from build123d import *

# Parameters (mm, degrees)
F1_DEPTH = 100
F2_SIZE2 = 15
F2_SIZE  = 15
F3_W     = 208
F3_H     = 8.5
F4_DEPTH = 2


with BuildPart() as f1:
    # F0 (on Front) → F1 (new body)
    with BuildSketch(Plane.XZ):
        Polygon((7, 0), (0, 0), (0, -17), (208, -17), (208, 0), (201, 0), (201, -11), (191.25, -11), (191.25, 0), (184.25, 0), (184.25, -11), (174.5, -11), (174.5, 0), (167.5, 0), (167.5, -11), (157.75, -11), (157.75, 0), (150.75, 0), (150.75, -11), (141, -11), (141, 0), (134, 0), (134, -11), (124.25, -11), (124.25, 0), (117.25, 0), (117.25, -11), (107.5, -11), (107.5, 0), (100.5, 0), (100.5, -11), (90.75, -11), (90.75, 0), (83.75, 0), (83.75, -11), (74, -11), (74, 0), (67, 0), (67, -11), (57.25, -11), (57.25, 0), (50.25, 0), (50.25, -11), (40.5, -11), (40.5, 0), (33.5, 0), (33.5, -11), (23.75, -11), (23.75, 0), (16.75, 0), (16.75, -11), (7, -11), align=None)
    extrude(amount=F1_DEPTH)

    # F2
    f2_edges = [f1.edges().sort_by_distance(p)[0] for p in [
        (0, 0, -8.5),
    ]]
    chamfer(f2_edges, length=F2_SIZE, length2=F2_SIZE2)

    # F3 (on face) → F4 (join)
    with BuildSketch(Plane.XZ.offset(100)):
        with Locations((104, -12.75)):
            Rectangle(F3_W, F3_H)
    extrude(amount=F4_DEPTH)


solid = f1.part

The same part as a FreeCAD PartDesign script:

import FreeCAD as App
import Part
import Sketcher

V = App.Vector


def edges_at(feature, points):
    """Names of the edges that pass closest to the given points."""
    edges = feature.Shape.Edges
    near = lambda p: min(range(len(edges)), key=lambda i: edges[i].distToShape(Part.Vertex(*p))[0])
    return sorted({f"Edge{near(p) + 1}" for p in points})

doc = App.newDocument("Part")
params = doc.addObject("Spreadsheet::Sheet", "Params")
for row, (alias, value) in enumerate([
    ("sketch1_width", "7 mm"),
    ("sketch1_width2", "208 mm"),
    ("sketch1_height", "17 mm"),
    ("sketch1_height2", "11 mm"),
    ("pad1_length", "100 mm"),
    ("chamfer_size", "15 mm"),
    ("chamfer_size2", "15 mm"),
    ("sketch2_width", "208 mm"),
    ("sketch2_height", "8.5 mm"),
    ("pad2_length", "2 mm"),
], start=1):
    params.set(f"A{row}", alias)
    params.set(f"B{row}", "=" + value)
    params.setAlias(f"B{row}", alias)

body = doc.addObject("PartDesign::Body", "Body")

sketch1 = body.newObject("Sketcher::SketchObject", "Sketch")
sketch1.AttachmentSupport = (doc.getObject("XZ_Plane"), [""])
sketch1.MapMode = "FlatFace"
sketch1.addGeometry([
    Part.LineSegment(V(7, 0, 0), V(0, 0, 0)),
    Part.LineSegment(V(0, 0, 0), V(0, -17, 0)),
    Part.LineSegment(V(0, -17, 0), V(208, -17, 0)),
    Part.LineSegment(V(208, -17, 0), V(208, 0, 0)),
    Part.LineSegment(V(208, 0, 0), V(201, 0, 0)),
    Part.LineSegment(V(201, 0, 0), V(201, -11, 0)),
    Part.LineSegment(V(201, -11, 0), V(191, -11, 0)),
    Part.LineSegment(V(191, -11, 0), V(191, 0, 0)),
    Part.LineSegment(V(191, 0, 0), V(184, 0, 0)),
    Part.LineSegment(V(184, 0, 0), V(184, -11, 0)),
    Part.LineSegment(V(184, -11, 0), V(174, -11, 0)),
    Part.LineSegment(V(174, -11, 0), V(174, 0, 0)),
    Part.LineSegment(V(174, 0, 0), V(168, 0, 0)),
    Part.LineSegment(V(168, 0, 0), V(168, -11, 0)),
    Part.LineSegment(V(168, -11, 0), V(158, -11, 0)),
    Part.LineSegment(V(158, -11, 0), V(158, 0, 0)),
    Part.LineSegment(V(158, 0, 0), V(151, 0, 0)),
    Part.LineSegment(V(151, 0, 0), V(151, -11, 0)),
    Part.LineSegment(V(151, -11, 0), V(141, -11, 0)),
    Part.LineSegment(V(141, -11, 0), V(141, 0, 0)),
    Part.LineSegment(V(141, 0, 0), V(134, 0, 0)),
    Part.LineSegment(V(134, 0, 0), V(134, -11, 0)),
    Part.LineSegment(V(134, -11, 0), V(124, -11, 0)),
    Part.LineSegment(V(124, -11, 0), V(124, 0, 0)),
    Part.LineSegment(V(124, 0, 0), V(117, 0, 0)),
    Part.LineSegment(V(117, 0, 0), V(117, -11, 0)),
    Part.LineSegment(V(117, -11, 0), V(108, -11, 0)),
    Part.LineSegment(V(108, -11, 0), V(108, 0, 0)),
    Part.LineSegment(V(108, 0, 0), V(100, 0, 0)),
    Part.LineSegment(V(100, 0, 0), V(100, -11, 0)),
    Part.LineSegment(V(100, -11, 0), V(91, -11, 0)),
    Part.LineSegment(V(91, -11, 0), V(91, 0, 0)),
    Part.LineSegment(V(91, 0, 0), V(84, 0, 0)),
    Part.LineSegment(V(84, 0, 0), V(84, -11, 0)),
    Part.LineSegment(V(84, -11, 0), V(74, -11, 0)),
    Part.LineSegment(V(74, -11, 0), V(74, 0, 0)),
    Part.LineSegment(V(74, 0, 0), V(67, 0, 0)),
    Part.LineSegment(V(67, 0, 0), V(67, -11, 0)),
    Part.LineSegment(V(67, -11, 0), V(57, -11, 0)),
    Part.LineSegment(V(57, -11, 0), V(57, 0, 0)),
    Part.LineSegment(V(57, 0, 0), V(50, 0, 0)),
    Part.LineSegment(V(50, 0, 0), V(50, -11, 0)),
    Part.LineSegment(V(50, -11, 0), V(40, -11, 0)),
    Part.LineSegment(V(40, -11, 0), V(40, 0, 0)),
    Part.LineSegment(V(40, 0, 0), V(34, 0, 0)),
    Part.LineSegment(V(34, 0, 0), V(34, -11, 0)),
    Part.LineSegment(V(34, -11, 0), V(24, -11, 0)),
    Part.LineSegment(V(24, -11, 0), V(24, 0, 0)),
    Part.LineSegment(V(24, 0, 0), V(17, 0, 0)),
    Part.LineSegment(V(17, 0, 0), V(17, -11, 0)),
    Part.LineSegment(V(17, -11, 0), V(7, -11, 0)),
    Part.LineSegment(V(7, -11, 0), V(7, 0, 0)),
], False)
sketch1.addConstraint([
    Sketcher.Constraint("Coincident", 0, 2, 1, 1),
    Sketcher.Constraint("Coincident", 1, 2, 2, 1),
    Sketcher.Constraint("Coincident", 2, 2, 3, 1),
    Sketcher.Constraint("Coincident", 3, 2, 4, 1),
    Sketcher.Constraint("Coincident", 4, 2, 5, 1),
    Sketcher.Constraint("Coincident", 5, 2, 6, 1),
    Sketcher.Constraint("Coincident", 6, 2, 7, 1),
    Sketcher.Constraint("Coincident", 7, 2, 8, 1),
    Sketcher.Constraint("Coincident", 8, 2, 9, 1),
    Sketcher.Constraint("Coincident", 9, 2, 10, 1),
    Sketcher.Constraint("Coincident", 10, 2, 11, 1),
    Sketcher.Constraint("Coincident", 11, 2, 12, 1),
    Sketcher.Constraint("Coincident", 12, 2, 13, 1),
    Sketcher.Constraint("Coincident", 13, 2, 14, 1),
    Sketcher.Constraint("Coincident", 14, 2, 15, 1),
    Sketcher.Constraint("Coincident", 15, 2, 16, 1),
    Sketcher.Constraint("Coincident", 16, 2, 17, 1),
    Sketcher.Constraint("Coincident", 17, 2, 18, 1),
    Sketcher.Constraint("Coincident", 18, 2, 19, 1),
    Sketcher.Constraint("Coincident", 19, 2, 20, 1),
    Sketcher.Constraint("Coincident", 20, 2, 21, 1),
    Sketcher.Constraint("Coincident", 21, 2, 22, 1),
    Sketcher.Constraint("Coincident", 22, 2, 23, 1),
    Sketcher.Constraint("Coincident", 23, 2, 24, 1),
    Sketcher.Constraint("Coincident", 24, 2, 25, 1),
    Sketcher.Constraint("Coincident", 25, 2, 26, 1),
    Sketcher.Constraint("Coincident", 26, 2, 27, 1),
    Sketcher.Constraint("Coincident", 27, 2, 28, 1),
    Sketcher.Constraint("Coincident", 28, 2, 29, 1),
    Sketcher.Constraint("Coincident", 29, 2, 30, 1),
    Sketcher.Constraint("Coincident", 30, 2, 31, 1),
    Sketcher.Constraint("Coincident", 31, 2, 32, 1),
    Sketcher.Constraint("Coincident", 32, 2, 33, 1),
    Sketcher.Constraint("Coincident", 33, 2, 34, 1),
    Sketcher.Constraint("Coincident", 34, 2, 35, 1),
    Sketcher.Constraint("Coincident", 35, 2, 36, 1),
    Sketcher.Constraint("Coincident", 36, 2, 37, 1),
    Sketcher.Constraint("Coincident", 37, 2, 38, 1),
    Sketcher.Constraint("Coincident", 38, 2, 39, 1),
    Sketcher.Constraint("Coincident", 39, 2, 40, 1),
    Sketcher.Constraint("Coincident", 40, 2, 41, 1),
    Sketcher.Constraint("Coincident", 41, 2, 42, 1),
    Sketcher.Constraint("Coincident", 42, 2, 43, 1),
    Sketcher.Constraint("Coincident", 43, 2, 44, 1),
    Sketcher.Constraint("Coincident", 44, 2, 45, 1),
    Sketcher.Constraint("Coincident", 45, 2, 46, 1),
    Sketcher.Constraint("Coincident", 46, 2, 47, 1),
    Sketcher.Constraint("Coincident", 47, 2, 48, 1),
    Sketcher.Constraint("Coincident", 48, 2, 49, 1),
    Sketcher.Constraint("Coincident", 49, 2, 50, 1),
    Sketcher.Constraint("Coincident", 50, 2, 51, 1),
    Sketcher.Constraint("Coincident", 51, 2, 0, 1),
    Sketcher.Constraint("Horizontal", 0),
    Sketcher.Constraint("Vertical", 1),
    Sketcher.Constraint("Horizontal", 2),
    Sketcher.Constraint("Vertical", 3),
    Sketcher.Constraint("Horizontal", 4),
    Sketcher.Constraint("Vertical", 5),
    Sketcher.Constraint("Horizontal", 6),
    Sketcher.Constraint("Vertical", 7),
    Sketcher.Constraint("Horizontal", 8),
    Sketcher.Constraint("Vertical", 9),
    Sketcher.Constraint("Horizontal", 10),
    Sketcher.Constraint("Vertical", 11),
    Sketcher.Constraint("Horizontal", 12),
    Sketcher.Constraint("Vertical", 13),
    Sketcher.Constraint("Horizontal", 14),
    Sketcher.Constraint("Vertical", 15),
    Sketcher.Constraint("Horizontal", 16),
    Sketcher.Constraint("Vertical", 17),
    Sketcher.Constraint("Horizontal", 18),
    Sketcher.Constraint("Vertical", 19),
    Sketcher.Constraint("Horizontal", 20),
    Sketcher.Constraint("Vertical", 21),
    Sketcher.Constraint("Horizontal", 22),
    Sketcher.Constraint("Vertical", 23),
    Sketcher.Constraint("Horizontal", 24),
    Sketcher.Constraint("Vertical", 25),
    Sketcher.Constraint("Horizontal", 26),
    Sketcher.Constraint("Vertical", 27),
    Sketcher.Constraint("Horizontal", 28),
    Sketcher.Constraint("Vertical", 29),
    Sketcher.Constraint("Horizontal", 30),
    Sketcher.Constraint("Vertical", 31),
    Sketcher.Constraint("Horizontal", 32),
    Sketcher.Constraint("Vertical", 33),
    Sketcher.Constraint("Horizontal", 34),
    Sketcher.Constraint("Vertical", 35),
    Sketcher.Constraint("Horizontal", 36),
    Sketcher.Constraint("Vertical", 37),
    Sketcher.Constraint("Horizontal", 38),
    Sketcher.Constraint("Vertical", 39),
    Sketcher.Constraint("Horizontal", 40),
    Sketcher.Constraint("Vertical", 41),
    Sketcher.Constraint("Horizontal", 42),
    Sketcher.Constraint("Vertical", 43),
    Sketcher.Constraint("Horizontal", 44),
    Sketcher.Constraint("Vertical", 45),
    Sketcher.Constraint("Horizontal", 46),
    Sketcher.Constraint("Vertical", 47),
    Sketcher.Constraint("Horizontal", 48),
    Sketcher.Constraint("Vertical", 49),
    Sketcher.Constraint("Horizontal", 50),
    Sketcher.Constraint("Vertical", 51),
    Sketcher.Constraint("Coincident", 0, 2, -1, 1),
    Sketcher.Constraint("PointOnObject", 3, 2, -1),
    Sketcher.Constraint("PointOnObject", 7, 2, -1),
    Sketcher.Constraint("PointOnObject", 11, 2, -1),
    Sketcher.Constraint("PointOnObject", 15, 2, -1),
    Sketcher.Constraint("PointOnObject", 19, 2, -1),
    Sketcher.Constraint("PointOnObject", 23, 2, -1),
    Sketcher.Constraint("PointOnObject", 27, 2, -1),
    Sketcher.Constraint("PointOnObject", 31, 2, -1),
    Sketcher.Constraint("PointOnObject", 35, 2, -1),
    Sketcher.Constraint("PointOnObject", 39, 2, -1),
    Sketcher.Constraint("PointOnObject", 43, 2, -1),
    Sketcher.Constraint("PointOnObject", 47, 2, -1),
    Sketcher.Constraint("Horizontal", 6, 2, 9, 2),
    Sketcher.Constraint("Horizontal", 10, 2, 13, 2),
    Sketcher.Constraint("Horizontal", 14, 2, 17, 2),
    Sketcher.Constraint("Horizontal", 18, 2, 21, 2),
    Sketcher.Constraint("Horizontal", 22, 2, 25, 2),
    Sketcher.Constraint("Horizontal", 26, 2, 29, 2),
    Sketcher.Constraint("Horizontal", 30, 2, 33, 2),
    Sketcher.Constraint("Horizontal", 34, 2, 37, 2),
    Sketcher.Constraint("Horizontal", 38, 2, 41, 2),
    Sketcher.Constraint("Horizontal", 42, 2, 45, 2),
    Sketcher.Constraint("Horizontal", 46, 2, 49, 2),
    Sketcher.Constraint("Equal", 0, 4),
    Sketcher.Constraint("Equal", 4, 8),
    Sketcher.Constraint("Equal", 6, 10),
    Sketcher.Constraint("Equal", 8, 12),
    Sketcher.Constraint("Equal", 10, 14),
    Sketcher.Constraint("Equal", 12, 16),
    Sketcher.Constraint("Equal", 14, 18),
    Sketcher.Constraint("Equal", 16, 20),
    Sketcher.Constraint("Equal", 18, 22),
    Sketcher.Constraint("Equal", 20, 24),
    Sketcher.Constraint("Equal", 22, 26),
    Sketcher.Constraint("Equal", 24, 28),
    Sketcher.Constraint("Equal", 26, 30),
    Sketcher.Constraint("Equal", 28, 32),
    Sketcher.Constraint("Equal", 30, 34),
    Sketcher.Constraint("Equal", 32, 36),
    Sketcher.Constraint("Equal", 34, 38),
    Sketcher.Constraint("Equal", 36, 40),
    Sketcher.Constraint("Equal", 38, 42),
    Sketcher.Constraint("Equal", 40, 44),
    Sketcher.Constraint("Equal", 42, 46),
    Sketcher.Constraint("Equal", 44, 48),
    Sketcher.Constraint("Equal", 46, 50),
    Sketcher.Constraint("DistanceX", 0, 2, 0, 1, 7.0),
    Sketcher.Constraint("DistanceX", 2, 1, 2, 2, 208.0),
    Sketcher.Constraint("DistanceY", 1, 2, 1, 1, 17.0),
    Sketcher.Constraint("DistanceY", 5, 2, 5, 1, 11.0),
])
sketch1.setExpression("Constraints[151]", "Params.sketch1_width")
sketch1.setExpression("Constraints[152]", "Params.sketch1_width2")
sketch1.setExpression("Constraints[153]", "Params.sketch1_height")
sketch1.setExpression("Constraints[154]", "Params.sketch1_height2")
pad1 = body.newObject("PartDesign::Pad", "Pad")
pad1.Profile = sketch1
pad1.setExpression("Length", "Params.pad1_length")
doc.recompute()

chamfer = body.newObject("PartDesign::Chamfer", "Chamfer")
chamfer.Base = (pad1, edges_at(pad1, [(0, 0, -8.5)]))
chamfer.ChamferType = "Two distances"
chamfer.setExpression("Size", "Params.chamfer_size")
chamfer.setExpression("Size2", "Params.chamfer_size2")

sketch2 = body.newObject("Sketcher::SketchObject", "Sketch001")
sketch2.AttachmentSupport = (doc.getObject("XZ_Plane"), [""])
sketch2.MapMode = "FlatFace"
sketch2.AttachmentOffset = App.Placement(V(0, 0, 100), App.Rotation())
sketch2.addGeometry([
    Part.LineSegment(V(0, -8, 0), V(0, -17, 0)),
    Part.LineSegment(V(0, -17, 0), V(208, -17, 0)),
    Part.LineSegment(V(208, -17, 0), V(208, -8, 0)),
    Part.LineSegment(V(208, -8, 0), V(0, -8, 0)),
], False)
sketch2.addConstraint([
    Sketcher.Constraint("Coincident", 0, 2, 1, 1),
    Sketcher.Constraint("Coincident", 1, 2, 2, 1),
    Sketcher.Constraint("Coincident", 2, 2, 3, 1),
    Sketcher.Constraint("Coincident", 3, 2, 0, 1),
    Sketcher.Constraint("Vertical", 0),
    Sketcher.Constraint("Horizontal", 1),
    Sketcher.Constraint("Vertical", 2),
    Sketcher.Constraint("Horizontal", 3),
    Sketcher.Constraint("PointOnObject", 0, 2, -2),
    Sketcher.Constraint("DistanceX", 1, 1, 1, 2, 208.0),
    Sketcher.Constraint("DistanceY", 0, 2, 0, 1, 8.5),
    Sketcher.Constraint("DistanceY", 0, 2, -1, 1, 17.0),
])
sketch2.setExpression("Constraints[9]", "Params.sketch2_width")
sketch2.setExpression("Constraints[10]", "Params.sketch2_height")
pad2 = body.newObject("PartDesign::Pad", "Pad001")
pad2.Profile = sketch2
pad2.setExpression("Length", "Params.pad2_length")

doc.recompute()
